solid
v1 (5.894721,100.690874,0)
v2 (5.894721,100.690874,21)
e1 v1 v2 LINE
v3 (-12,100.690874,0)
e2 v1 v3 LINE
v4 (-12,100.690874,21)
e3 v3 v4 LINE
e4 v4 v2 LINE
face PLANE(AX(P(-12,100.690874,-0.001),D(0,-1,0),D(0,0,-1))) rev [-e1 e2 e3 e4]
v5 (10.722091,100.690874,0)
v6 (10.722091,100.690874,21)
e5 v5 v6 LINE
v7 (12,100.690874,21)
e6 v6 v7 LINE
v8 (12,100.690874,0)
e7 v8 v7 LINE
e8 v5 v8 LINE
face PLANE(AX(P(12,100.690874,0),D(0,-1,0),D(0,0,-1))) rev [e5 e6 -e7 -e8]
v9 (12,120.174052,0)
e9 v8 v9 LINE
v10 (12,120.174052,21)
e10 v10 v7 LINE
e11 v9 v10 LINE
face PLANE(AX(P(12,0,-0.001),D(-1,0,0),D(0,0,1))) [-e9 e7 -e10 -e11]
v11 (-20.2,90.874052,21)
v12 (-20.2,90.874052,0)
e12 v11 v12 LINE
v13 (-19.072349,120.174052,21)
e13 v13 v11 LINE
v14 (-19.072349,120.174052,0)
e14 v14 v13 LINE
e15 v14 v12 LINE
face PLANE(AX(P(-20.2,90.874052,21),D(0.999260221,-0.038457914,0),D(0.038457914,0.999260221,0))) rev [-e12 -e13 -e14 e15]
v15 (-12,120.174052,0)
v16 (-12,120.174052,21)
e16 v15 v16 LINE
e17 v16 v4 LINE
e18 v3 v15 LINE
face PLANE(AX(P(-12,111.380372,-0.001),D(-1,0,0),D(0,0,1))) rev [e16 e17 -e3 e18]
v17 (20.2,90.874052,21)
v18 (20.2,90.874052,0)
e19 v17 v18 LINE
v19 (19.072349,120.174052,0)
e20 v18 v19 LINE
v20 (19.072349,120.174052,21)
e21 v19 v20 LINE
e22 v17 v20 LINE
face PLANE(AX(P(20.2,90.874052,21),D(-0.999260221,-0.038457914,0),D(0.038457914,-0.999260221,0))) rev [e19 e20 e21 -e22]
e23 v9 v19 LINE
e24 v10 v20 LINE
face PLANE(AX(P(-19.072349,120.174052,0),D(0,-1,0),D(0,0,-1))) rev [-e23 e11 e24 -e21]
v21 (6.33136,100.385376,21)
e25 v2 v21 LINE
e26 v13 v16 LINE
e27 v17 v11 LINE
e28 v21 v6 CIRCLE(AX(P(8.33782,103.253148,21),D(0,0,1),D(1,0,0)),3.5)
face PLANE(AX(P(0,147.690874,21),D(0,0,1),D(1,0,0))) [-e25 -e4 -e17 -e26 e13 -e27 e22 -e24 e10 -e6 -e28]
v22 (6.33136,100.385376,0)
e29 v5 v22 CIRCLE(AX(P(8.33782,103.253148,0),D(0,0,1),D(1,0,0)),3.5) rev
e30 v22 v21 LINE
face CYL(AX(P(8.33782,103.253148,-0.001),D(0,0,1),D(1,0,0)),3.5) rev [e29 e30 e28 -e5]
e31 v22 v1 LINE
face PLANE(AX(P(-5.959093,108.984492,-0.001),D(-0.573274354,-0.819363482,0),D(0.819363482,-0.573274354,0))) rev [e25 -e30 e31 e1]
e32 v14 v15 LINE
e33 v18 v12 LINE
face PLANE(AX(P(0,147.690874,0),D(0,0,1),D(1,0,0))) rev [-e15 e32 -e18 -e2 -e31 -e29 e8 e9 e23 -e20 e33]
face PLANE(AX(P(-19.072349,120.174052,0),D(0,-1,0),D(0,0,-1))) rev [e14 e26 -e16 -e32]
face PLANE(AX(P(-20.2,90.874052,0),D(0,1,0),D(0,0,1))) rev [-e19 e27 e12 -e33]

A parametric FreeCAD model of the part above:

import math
import FreeCAD as App
import Part
import Sketcher

V = App.Vector
Q = App.Units.Quantity


def edges_at(feature, points):
    """Names of the edges that pass closest to the given points."""
    edges = feature.Shape.Edges
    near = lambda p: min(range(len(edges)), key=lambda i: edges[i].distToShape(Part.Vertex(*p))[0])
    return sorted({f"Edge{near(p) + 1}" for p in points})


def add_polygon(sketch, points):
    """Adds a closed chain of lines whose ends are joined by coincident constraints."""
    first, n = sketch.GeometryCount, len(points)
    for a, b in zip(points, points[1:] + points[:1]):
        sketch.addGeometry(Part.LineSegment(App.Vector(*a, 0), App.Vector(*b, 0)), False)
    for i in range(n):
        sketch.addConstraint(Sketcher.Constraint("Coincident", first + i, 2, first + (i + 1) % n, 1))

doc = App.newDocument("Part")
body = doc.addObject("PartDesign::Body", "Body")

sketch1 = body.newObject("Sketcher::SketchObject", "Sketch")
sketch1.AttachmentSupport = (doc.getObject("XY_Plane"), [""])
sketch1.MapMode = "FlatFace"
sketch1.addGeometry(Part.LineSegment(V(9.1, 83.474052, 0), V(9.1, 89.474052, 0)), False)
sketch1.addGeometry(Part.LineSegment(V(9.1, 89.474052, 0), V(11.1, 89.474052, 0)), False)
sketch1.addGeometry(Part.LineSegment(V(11.1, 89.474052, 0), V(11.1, 83.474052, 0)), False)
sketch1.addGeometry(Part.LineSegment(V(11.1, 83.474052, 0), V(20.2, 83.474052, 0)), False)
sketch1.addGeometry(Part.LineSegment(V(20.2, 83.474052, 0), V(20.2, 90.874052, 0)), False)
sketch1.addGeometry(Part.LineSegment(V(20.2, 90.874052, 0), V(17.986684, 148.383117, 0)), False)
sketch1.addGeometry(Part.ArcOfCircle(Part.Circle(V(0, 147.690874, 0), V(0, 0, 1), 18), math.radians(2.20402), math.radians(177.79598)), False)
sketch1.addGeometry(Part.LineSegment(V(-17.986684, 148.383117, 0), V(-20.2, 90.874052, 0)), False)
sketch1.addGeometry(Part.LineSegment(V(-20.2, 90.874052, 0), V(-20.2, 83.474052, 0)), False)
sketch1.addGeometry(Part.LineSegment(V(-20.2, 83.474052, 0), V(-11.1, 83.474052, 0)), False)
sketch1.addGeometry(Part.LineSegment(V(-11.1, 83.474052, 0), V(-11.1, 89.474052, 0)), False)
sketch1.addGeometry(Part.LineSegment(V(-11.1, 89.474052, 0), V(-9.1, 89.474052, 0)), False)
sketch1.addGeometry(Part.LineSegment(V(-9.1, 89.474052, 0), V(-9.1, 83.474052, 0)), False)
sketch1.addGeometry(Part.LineSegment(V(-9.1, 83.474052, 0), V(9.1, 83.474052, 0)), False)
sketch1.addGeometry(Part.Circle(V(-15, 88.124052, 0), V(0, 0, 1), 1.5), False)
sketch1.addGeometry(Part.Circle(V(-5.2, 88.124052, 0), V(0, 0, 1), 1.5), False)
sketch1.addGeometry(Part.Circle(V(5.2, 88.124052, 0), V(0, 0, 1), 1.5), False)
sketch1.addGeometry(Part.Circle(V(15, 88.124052, 0), V(0, 0, 1), 1.5), False)
sketch1.addGeometry(Part.Circle(V(0, 147.690874, 0), V(0, 0, 1), 3.95), False)
sketch1.addConstraint(Sketcher.Constraint("Coincident", 0, 2, 1, 1))
sketch1.addConstraint(Sketcher.Constraint("Coincident", 1, 2, 2, 1))
sketch1.addConstraint(Sketcher.Constraint("Coincident", 2, 2, 3, 1))
sketch1.addConstraint(Sketcher.Constraint("Coincident", 3, 2, 4, 1))
sketch1.addConstraint(Sketcher.Constraint("Coincident", 4, 2, 5, 1))
sketch1.addConstraint(Sketcher.Constraint("Tangent", 5, 2, 6, 1))
sketch1.addConstraint(Sketcher.Constraint("Tangent", 6, 2, 7, 1))
sketch1.addConstraint(Sketcher.Constraint("Coincident", 7, 2, 8, 1))
sketch1.addConstraint(Sketcher.Constraint("Coincident", 8, 2, 9, 1))
sketch1.addConstraint(Sketcher.Constraint("Coincident", 9, 2, 10, 1))
sketch1.addConstraint(Sketcher.Constraint("Coincident", 10, 2, 11, 1))
sketch1.addConstraint(Sketcher.Constraint("Coincident", 11, 2, 12, 1))
sketch1.addConstraint(Sketcher.Constraint("Coincident", 12, 2, 13, 1))
sketch1.addConstraint(Sketcher.Constraint("Coincident", 13, 2, 0, 1))
sketch1.addConstraint(Sketcher.Constraint("Vertical", 0))
sketch1.addConstraint(Sketcher.Constraint("Horizontal", 1))
sketch1.addConstraint(Sketcher.Constraint("Vertical", 2))
sketch1.addConstraint(Sketcher.Constraint("Horizontal", 3))
sketch1.addConstraint(Sketcher.Constraint("Vertical", 4))
sketch1.addConstraint(Sketcher.Constraint("Vertical", 8))
sketch1.addConstraint(Sketcher.Constraint("Horizontal", 9))
sketch1.addConstraint(Sketcher.Constraint("Vertical", 10))
sketch1.addConstraint(Sketcher.Constraint("Horizontal", 11))
sketch1.addConstraint(Sketcher.Constraint("Vertical", 12))
sketch1.addConstraint(Sketcher.Constraint("Horizontal", 13))
sketch1.addConstraint(Sketcher.Constraint("Coincident", 18, 3, 6, 3))
sketch1.addConstraint(Sketcher.Constraint("Equal", 14, 15))
sketch1.addConstraint(Sketcher.Constraint("Equal", 15, 16))
sketch1.addConstraint(Sketcher.Constraint("Equal", 16, 17))
sketch1.addConstraint(Sketcher.Constraint("Symmetric", 15, 3, 16, 3, -2))
sketch1.addConstraint(Sketcher.Constraint("Symmetric", 14, 3, 17, 3, -2))
sketch1.addConstraint(Sketcher.Constraint("Symmetric", 5, 2, 6, 2, -2))
sketch1.addConstraint(Sketcher.Constraint("Symmetric", 3, 2, 8, 2, -2))
sketch1.addConstraint(Sketcher.Constraint("Symmetric", 1, 2, 10, 2, -2))
sketch1.addConstraint(Sketcher.Constraint("Horizontal", 14, 3, 15, 3))
sketch1.addConstraint(Sketcher.Constraint("Horizontal", 9, 2, 12, 2))
sketch1.addConstraint(Sketcher.Constraint("Equal", 1, 11))
sketch1.addConstraint(Sketcher.Constraint("Diameter", 14, Q("3 mm")))
sketch1.addConstraint(Sketcher.Constraint("Radius", 6, Q("18 mm")))
sketch1.addConstraint(Sketcher.Constraint("Diameter", 18, Q("7.9 mm")))
sketch1.addConstraint(Sketcher.Constraint("DistanceX", 1, 1, 1, 2, Q("2 mm")))
sketch1.addConstraint(Sketcher.Constraint("DistanceY", 0, 1, 0, 2, Q("6 mm")))
sketch1.addConstraint(Sketcher.Constraint("DistanceX", 3, 1, 3, 2, Q("9.1 mm")))
sketch1.addConstraint(Sketcher.Constraint("DistanceX", 13, 1, 13, 2, Q("18.2 mm")))
sketch1.addConstraint(Sketcher.Constraint("DistanceY", 4, 1, 4, 2, Q("7.4 mm")))
sketch1.addConstraint(Sketcher.Constraint("DistanceX", 14, 3, -1, 1, Q("15 mm")))
sketch1.addConstraint(Sketcher.Constraint("DistanceX", 16, 3, 3, 2, Q("15 mm")))
sketch1.addConstraint(Sketcher.Constraint("DistanceY", 16, 3, 0, 2, Q("1.35 mm")))
sketch1.addConstraint(Sketcher.Constraint("Distance", 5, Q("57.55164 mm")))
sketch1.addConstraint(Sketcher.Constraint("DistanceY", -1, 1, 6, 3, Q("147.690874 mm")))
pad1 = body.newObject("PartDesign::Pad", "Pad")
pad1.Profile = sketch1
pad1.Length = 21

sketch2 = body.newObject("Sketcher::SketchObject", "Sketch001")
sketch2.AttachmentSupport = (doc.getObject("XY_Plane"), [""])
sketch2.MapMode = "FlatFace"
sketch2.AttachmentOffset = App.Placement(V(0, 0, 21), App.Rotation())
add_polygon(sketch2, [(12, 128.172168), (-3.278173, 117.48267), (12, 106.793172)])
sketch2.addConstraint(Sketcher.Constraint("Vertical", 2))
sketch2.addConstraint(Sketcher.Constraint("Equal", 0, 1))
sketch2.addConstraint(Sketcher.Constraint("DistanceX", -1, 1, 1, 2, Q("12 mm")))
sketch2.addConstraint(Sketcher.Constraint("DistanceY", 1, 2, 0, 2, Q("10.689498 mm")))
sketch2.addConstraint(Sketcher.Constraint("Distance", 0, Q("18.646392 mm")))
sketch2.addConstraint(Sketcher.Constraint("DistanceY", -1, 1, 0, 2, Q("117.48267 mm")))
pocket1 = body.newObject("PartDesign::Pocket", "Pocket")
pocket1.Profile = sketch2
pocket1.Type = "UpToFirst"

sketch3 = body.newObject("Sketcher::SketchObject", "Sketch002")
sketch3.AttachmentSupport = (doc.getObject("XY_Plane"), [""])
sketch3.MapMode = "FlatFace"
sketch3.AttachmentOffset = App.Placement(V(0, 0, 21), App.Rotation())
sketch3.addGeometry(Part.ArcOfCircle(Part.Circle(V(0, 147.690874, 0), V(0, 0, 1), 18), math.radians(-131.810315), math.radians(-99.367878)), False)
sketch3.addGeometry(Part.LineSegment(V(-12, 134.274466, 0), V(-12, 123.584968, 0)), False)
sketch3.addGeometry(Part.LineSegment(V(-12, 123.584968, 0), V(-2.929911, 129.93093, 0)), False)
sketch3.addConstraint(Sketcher.Constraint("Coincident", 0, 1, 1, 1))
sketch3.addConstraint(Sketcher.Constraint("Coincident", 1, 2, 2, 1))
sketch3.addConstraint(Sketcher.Constraint("Coincident", 2, 2, 0, 2))
sketch3.addConstraint(Sketcher.Constraint("Vertical", 1))
sketch3.addConstraint(Sketcher.Constraint("PointOnObject", 0, 3, -2))
sketch3.addConstraint(Sketcher.Constraint("Radius", 0, Q("18 mm")))
sketch3.addConstraint(Sketcher.Constraint("DistanceX", 0, 1, -1, 1, Q("12 mm")))
sketch3.addConstraint(Sketcher.Constraint("DistanceY", 1, 2, 1, 1, Q("10.689498 mm")))
sketch3.addConstraint(Sketcher.Constraint("DistanceY", -1, 1, 1, 2, Q("123.584968 mm")))
sketch3.addConstraint(Sketcher.Constraint("DistanceX", 2, 2, -1, 1, Q("2.929911 mm")))
pocket2 = body.newObject("PartDesign::Pocket", "Pocket001")
pocket2.Profile = sketch3
pocket2.Type = "UpToFirst"

sketch4 = body.newObject("Sketcher::SketchObject", "Sketch003")
sketch4.AttachmentSupport = (doc.getObject("XY_Plane"), [""])
sketch4.MapMode = "FlatFace"
sketch4.AttachmentOffset = App.Placement(V(0, 0, 21), App.Rotation())
add_polygon(sketch4, [(-12, 111.380372), (-12, 100.690874), (3.278173, 100.690874)])
sketch4.addConstraint(Sketcher.Constraint("Vertical", 0))
sketch4.addConstraint(Sketcher.Constraint("Horizontal", 1))
sketch4.addConstraint(Sketcher.Constraint("DistanceX", 0, 2, -1, 1, Q("12 mm")))
sketch4.addConstraint(Sketcher.Constraint("DistanceY", 0, 2, 0, 1, Q("10.689498 mm")))
sketch4.addConstraint(Sketcher.Constraint("Distance", 2, Q("18.646392 mm")))
sketch4.addConstraint(Sketcher.Constraint("DistanceY", -1, 1, 0, 2, Q("100.690874 mm")))
pocket3 = body.newObject("PartDesign::Pocket", "Pocket002")
pocket3.Profile = sketch4
pocket3.Type = "UpToFirst"

sketch5 = body.newObject("Sketcher::SketchObject", "Sketch004")
sketch5.AttachmentSupport = (doc.getObject("XY_Plane"), [""])
sketch5.MapMode = "FlatFace"
sketch5.AttachmentOffset = App.Placement(V(0, 0, 21), App.Rotation())
sketch5.addGeometry(Part.LineSegment(V(-5.959093, 108.984492, 0), V(6.33136, 100.385376, 0)), False)
sketch5.addGeometry(Part.ArcOfCircle(Part.Circle(V(8.33782, 103.253148, 0), V(0, 0, 1), 3.5), math.radians(-124.978874), math.radians(55.021127)), False)
sketch5.addGeometry(Part.LineSegment(V(10.34428, 106.120921, 0), V(-1.946172, 114.720036, 0)), False)
sketch5.addGeometry(Part.ArcOfCircle(Part.Circle(V(-3.952632, 111.852264, 0), V(0, 0, 1), 3.5), math.radians(55.021126), math.radians(235.021127)), False)
sketch5.addConstraint(Sketcher.Constraint("Tangent", 0, 2, 1, 1))
sketch5.addConstraint(Sketcher.Constraint("Tangent", 1, 2, 2, 1))
sketch5.addConstraint(Sketcher.Constraint("Tangent", 2, 2, 3, 1))
sketch5.addConstraint(Sketcher.Constraint("Tangent", 3, 2, 0, 1))
sketch5.addConstraint(Sketcher.Constraint("Equal", 1, 3))
sketch5.addConstraint(Sketcher.Constraint("Radius", 1, Q("3.5 mm")))
sketch5.addConstraint(Sketcher.Constraint("Distance", 0, Q("15 mm")))
sketch5.addConstraint(Sketcher.Constraint("DistanceX", -1, 1, 1, 3, Q("8.33782 mm")))
sketch5.addConstraint(Sketcher.Constraint("DistanceY", -1, 1, 1, 3, Q("103.253148 mm")))
sketch5.addConstraint(Sketcher.Constraint("DistanceX", -1, 1, 0, 2, Q("6.33136 mm")))
pocket4 = body.newObject("PartDesign::Pocket", "Pocket003")
pocket4.Profile = sketch5
pocket4.Length = 21
doc.recompute()

fillet = body.newObject("PartDesign::Fillet", "Fillet")
fillet.Base = (pocket4, edges_at(pocket4, [
    (-3.278, 117.483, 10.5),
    (12, 128.172, 10.5),
    (12, 106.793, 10.5),
    (-12, 134.274, 10.5),
    (-2.93, 129.931, 10.5),
    (-12, 123.585, 10.5),
    (-12, 111.38, 10.5),
    (3.278, 100.691, 10.5),
    (-12, 100.691, 10.5),
]))
fillet.Radius = 1

sketch6 = body.newObject("Sketcher::SketchObject", "Sketch005")
sketch6.AttachmentSupport = (doc.getObject("XY_Plane"), [""])
sketch6.MapMode = "FlatFace"
sketch6.AttachmentOffset = App.Placement(V(0, 0, 21), App.Rotation())
add_polygon(sketch6, [(-20.2, 90.874052), (-20.2, 83.474052), (20.2, 83.474052), (20.2, 90.874052)])
add_polygon(sketch6, [(-19.072349, 165.690874), (-19.072349, 120.174052), (19.072349, 120.174052), (19.072349, 165.690874)])
sketch6.addConstraint(Sketcher.Constraint("Vertical", 0))
sketch6.addConstraint(Sketcher.Constraint("Horizontal", 1))
sketch6.addConstraint(Sketcher.Constraint("Vertical", 2))
sketch6.addConstraint(Sketcher.Constraint("Horizontal", 3))
sketch6.addConstraint(Sketcher.Constraint("Vertical", 4))
sketch6.addConstraint(Sketcher.Constraint("Horizontal", 5))
sketch6.addConstraint(Sketcher.Constraint("Vertical", 6))
sketch6.addConstraint(Sketcher.Constraint("Horizontal", 7))
sketch6.addConstraint(Sketcher.Constraint("DistanceX", 1, 1, 1, 2, Q("40.4 mm")))
sketch6.addConstraint(Sketcher.Constraint("DistanceY", 0, 2, 0, 1, Q("7.4 mm")))
sketch6.addConstraint(Sketcher.Constraint("DistanceX", 0, 2, -1, 1, Q("20.2 mm")))
sketch6.addConstraint(Sketcher.Constraint("DistanceY", 3, 2, 4, 2, Q("29.3 mm")))
sketch6.addConstraint(Sketcher.Constraint("DistanceY", 4, 2, 4, 1, Q("45.516822 mm")))
sketch6.addConstraint(Sketcher.Constraint("DistanceX", 5, 1, 5, 2, Q("38.144698 mm")))
sketch6.addConstraint(Sketcher.Constraint("DistanceX", 4, 2, -1, 1, Q("19.072349 mm")))
sketch6.addConstraint(Sketcher.Constraint("DistanceY", -1, 1, 0, 2, Q("83.474052 mm")))
pocket5 = body.newObject("PartDesign::Pocket", "Pocket004")
pocket5.Profile = sketch6
pocket5.Type = "ThroughAll"

sketch7 = body.newObject("Sketcher::SketchObject", "Sketch006")
sketch7.AttachmentSupport = (doc.getObject("XY_Plane"), [""])
sketch7.MapMode = "FlatFace"
sketch7.AttachmentOffset = App.Placement(V(0, 0, 21), App.Rotation())
sketch7.addGeometry(Part.LineSegment(V(-12, 100.690874, 0), V(5.894721, 100.690874, 0)), False)
sketch7.addGeometry(Part.LineSegment(V(5.894721, 100.690874, 0), V(6.33136, 100.385376, 0)), False)
sketch7.addGeometry(Part.ArcOfCircle(Part.Circle(V(8.33782, 103.253148, 0), V(0, 0, 1), 3.5), math.radians(-124.978873), math.radians(-47.060915)), False)
sketch7.addGeometry(Part.LineSegment(V(10.722091, 100.690874, 0), V(12, 100.690874, 0)), False)
sketch7.addGeometry(Part.LineSegment(V(12, 100.690874, 0), V(12, 120.174052, 0)), False)
sketch7.addGeometry(Part.LineSegment(V(12, 120.174052, 0), V(-12, 120.174052, 0)), False)
sketch7.addGeometry(Part.LineSegment(V(-12, 120.174052, 0), V(-12, 100.690874, 0)), False)
sketch7.addConstraint(Sketcher.Constraint("Coincident", 0, 2, 1, 1))
sketch7.addConstraint(Sketcher.Constraint("Tangent", 1, 2, 2, 1))
sketch7.addConstraint(Sketcher.Constraint("Coincident", 2, 2, 3, 1))
sketch7.addConstraint(Sketcher.Constraint("Coincident", 3, 2, 4, 1))
sketch7.addConstraint(Sketcher.Constraint("Coincident", 4, 2, 5, 1))
sketch7.addConstraint(Sketcher.Constraint("Coincident", 5, 2, 6, 1))
sketch7.addConstraint(Sketcher.Constraint("Coincident", 6, 2, 0, 1))
sketch7.addConstraint(Sketcher.Constraint("Horizontal", 0))
sketch7.addConstraint(Sketcher.Constraint("Horizontal", 3))
sketch7.addConstraint(Sketcher.Constraint("Vertical", 4))
sketch7.addConstraint(Sketcher.Constraint("Horizontal", 5))
sketch7.addConstraint(Sketcher.Constraint("Vertical", 6))
sketch7.addConstraint(Sketcher.Constraint("Symmetric", 3, 2, 6, 2, -2))
sketch7.addConstraint(Sketcher.Constraint("Radius", 2, Q("3.5 mm")))
sketch7.addConstraint(Sketcher.Constraint("DistanceX", 5, 2, 5, 1, Q("24 mm")))
sketch7.addConstraint(Sketcher.Constraint("Distance", 1, Q("0.5329 mm")))
sketch7.addConstraint(Sketcher.Constraint("DistanceX", 0, 1, 0, 2, Q("17.894721 mm")))
sketch7.addConstraint(Sketcher.Constraint("DistanceX", 3, 1, 3, 2, Q("1.277909 mm")))
sketch7.addConstraint(Sketcher.Constraint("DistanceY", 4, 1, 4, 2, Q("19.483178 mm")))
sketch7.addConstraint(Sketcher.Constraint("DistanceY", -1, 1, 2, 3, Q("103.253148 mm")))
pocket6 = body.newObject("PartDesign::Pocket", "Pocket005")
pocket6.Profile = sketch7
pocket6.Type = "ThroughAll"

doc.recompute()
